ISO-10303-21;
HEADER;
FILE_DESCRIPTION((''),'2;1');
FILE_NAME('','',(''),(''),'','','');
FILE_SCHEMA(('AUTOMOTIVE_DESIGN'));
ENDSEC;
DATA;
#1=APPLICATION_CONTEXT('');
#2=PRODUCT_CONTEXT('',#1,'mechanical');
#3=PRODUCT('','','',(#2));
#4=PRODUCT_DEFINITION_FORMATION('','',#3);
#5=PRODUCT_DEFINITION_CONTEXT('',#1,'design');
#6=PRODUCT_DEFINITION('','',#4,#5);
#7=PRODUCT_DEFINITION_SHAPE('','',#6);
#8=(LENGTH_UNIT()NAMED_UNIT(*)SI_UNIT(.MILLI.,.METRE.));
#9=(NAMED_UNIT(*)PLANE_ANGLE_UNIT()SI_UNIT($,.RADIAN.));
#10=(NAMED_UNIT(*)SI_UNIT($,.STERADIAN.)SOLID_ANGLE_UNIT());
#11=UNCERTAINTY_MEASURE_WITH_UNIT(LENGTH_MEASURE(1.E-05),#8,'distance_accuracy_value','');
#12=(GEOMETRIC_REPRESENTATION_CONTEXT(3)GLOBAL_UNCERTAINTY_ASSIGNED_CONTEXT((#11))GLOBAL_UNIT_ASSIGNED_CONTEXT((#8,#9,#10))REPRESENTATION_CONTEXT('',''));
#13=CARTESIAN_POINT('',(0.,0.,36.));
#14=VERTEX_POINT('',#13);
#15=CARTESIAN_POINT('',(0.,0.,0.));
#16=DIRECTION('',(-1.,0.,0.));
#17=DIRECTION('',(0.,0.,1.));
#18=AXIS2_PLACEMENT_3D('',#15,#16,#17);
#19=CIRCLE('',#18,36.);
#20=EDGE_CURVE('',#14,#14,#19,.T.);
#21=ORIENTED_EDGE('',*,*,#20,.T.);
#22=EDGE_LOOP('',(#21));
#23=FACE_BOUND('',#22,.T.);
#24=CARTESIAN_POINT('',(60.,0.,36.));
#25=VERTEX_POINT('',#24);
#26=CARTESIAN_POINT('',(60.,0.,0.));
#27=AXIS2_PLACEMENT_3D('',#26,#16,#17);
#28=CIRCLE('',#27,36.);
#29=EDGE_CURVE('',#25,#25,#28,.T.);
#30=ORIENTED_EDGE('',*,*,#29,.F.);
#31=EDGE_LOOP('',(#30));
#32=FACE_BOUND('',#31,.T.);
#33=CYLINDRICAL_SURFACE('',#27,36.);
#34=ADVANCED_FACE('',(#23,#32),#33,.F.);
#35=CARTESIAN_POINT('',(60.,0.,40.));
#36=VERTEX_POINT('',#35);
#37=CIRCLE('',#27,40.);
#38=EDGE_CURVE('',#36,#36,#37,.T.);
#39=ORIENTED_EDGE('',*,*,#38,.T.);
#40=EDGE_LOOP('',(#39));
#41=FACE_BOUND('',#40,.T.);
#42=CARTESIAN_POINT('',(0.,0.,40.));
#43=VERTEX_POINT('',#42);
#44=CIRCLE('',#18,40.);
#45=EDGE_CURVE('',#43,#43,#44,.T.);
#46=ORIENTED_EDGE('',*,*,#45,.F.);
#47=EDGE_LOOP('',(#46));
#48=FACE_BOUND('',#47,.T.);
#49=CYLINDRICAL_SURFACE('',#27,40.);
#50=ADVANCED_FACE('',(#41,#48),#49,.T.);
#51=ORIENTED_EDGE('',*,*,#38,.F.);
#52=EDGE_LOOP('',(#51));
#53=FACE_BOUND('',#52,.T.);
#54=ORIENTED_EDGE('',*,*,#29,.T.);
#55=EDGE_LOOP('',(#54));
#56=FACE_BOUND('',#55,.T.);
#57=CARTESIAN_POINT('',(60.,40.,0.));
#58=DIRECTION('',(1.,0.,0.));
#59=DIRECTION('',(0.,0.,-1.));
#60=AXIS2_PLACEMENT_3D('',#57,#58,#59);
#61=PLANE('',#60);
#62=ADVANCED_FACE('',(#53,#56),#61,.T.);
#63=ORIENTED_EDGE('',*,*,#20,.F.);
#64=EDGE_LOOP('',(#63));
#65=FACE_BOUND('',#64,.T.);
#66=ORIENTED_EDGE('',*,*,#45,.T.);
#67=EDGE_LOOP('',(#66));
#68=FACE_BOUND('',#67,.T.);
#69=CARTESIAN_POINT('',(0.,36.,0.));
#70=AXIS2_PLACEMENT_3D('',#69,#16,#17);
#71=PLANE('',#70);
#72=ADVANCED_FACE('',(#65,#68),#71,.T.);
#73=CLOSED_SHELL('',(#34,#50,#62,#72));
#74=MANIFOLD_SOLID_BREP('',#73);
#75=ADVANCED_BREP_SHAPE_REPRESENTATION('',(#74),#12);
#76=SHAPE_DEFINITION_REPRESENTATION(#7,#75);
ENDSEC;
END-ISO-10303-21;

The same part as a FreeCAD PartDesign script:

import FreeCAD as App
import Part
import Sketcher

doc = App.newDocument("Part")
body = doc.addObject("PartDesign::Body", "Body")

# Sketch on XY plane
sketch1 = body.newObject("Sketcher::SketchObject", "Sketch")
sketch1.AttachmentSupport = (doc.getObject("XY_Plane"), [""])
sketch1.MapMode = "FlatFace"
sketch1.addGeometry([
    Part.LineSegment(App.Vector(60, 40, 0), App.Vector(60, 36, 0)),
    Part.LineSegment(App.Vector(60, 36, 0), App.Vector(0, 36, 0)),
    Part.LineSegment(App.Vector(0, 36, 0), App.Vector(0, 40, 0)),
    Part.LineSegment(App.Vector(0, 40, 0), App.Vector(60, 40, 0)),
], False)
sketch1.addConstraint([
    Sketcher.Constraint("Coincident", 0, 2, 1, 1),
    Sketcher.Constraint("Coincident", 1, 2, 2, 1),
    Sketcher.Constraint("Coincident", 2, 2, 3, 1),
    Sketcher.Constraint("Coincident", 3, 2, 0, 1),
    Sketcher.Constraint("Vertical", 0),
    Sketcher.Constraint("Horizontal", 1),
    Sketcher.Constraint("Vertical", 2),
    Sketcher.Constraint("Horizontal", 3),
    Sketcher.Constraint("PointOnObject", 1, 2, -2),
    Sketcher.Constraint("DistanceX", 1, 2, 1, 1, 60.0),
    Sketcher.Constraint("DistanceY", 0, 2, 0, 1, 4.0),
    Sketcher.Constraint("DistanceY", -1, 1, 0, 2, 36.0),
])
revolution = body.newObject("PartDesign::Revolution", "Revolution")
revolution.Profile = sketch1
revolution.ReferenceAxis = (sketch1, ["H_Axis"])
revolution.Angle = 360

doc.recompute()
